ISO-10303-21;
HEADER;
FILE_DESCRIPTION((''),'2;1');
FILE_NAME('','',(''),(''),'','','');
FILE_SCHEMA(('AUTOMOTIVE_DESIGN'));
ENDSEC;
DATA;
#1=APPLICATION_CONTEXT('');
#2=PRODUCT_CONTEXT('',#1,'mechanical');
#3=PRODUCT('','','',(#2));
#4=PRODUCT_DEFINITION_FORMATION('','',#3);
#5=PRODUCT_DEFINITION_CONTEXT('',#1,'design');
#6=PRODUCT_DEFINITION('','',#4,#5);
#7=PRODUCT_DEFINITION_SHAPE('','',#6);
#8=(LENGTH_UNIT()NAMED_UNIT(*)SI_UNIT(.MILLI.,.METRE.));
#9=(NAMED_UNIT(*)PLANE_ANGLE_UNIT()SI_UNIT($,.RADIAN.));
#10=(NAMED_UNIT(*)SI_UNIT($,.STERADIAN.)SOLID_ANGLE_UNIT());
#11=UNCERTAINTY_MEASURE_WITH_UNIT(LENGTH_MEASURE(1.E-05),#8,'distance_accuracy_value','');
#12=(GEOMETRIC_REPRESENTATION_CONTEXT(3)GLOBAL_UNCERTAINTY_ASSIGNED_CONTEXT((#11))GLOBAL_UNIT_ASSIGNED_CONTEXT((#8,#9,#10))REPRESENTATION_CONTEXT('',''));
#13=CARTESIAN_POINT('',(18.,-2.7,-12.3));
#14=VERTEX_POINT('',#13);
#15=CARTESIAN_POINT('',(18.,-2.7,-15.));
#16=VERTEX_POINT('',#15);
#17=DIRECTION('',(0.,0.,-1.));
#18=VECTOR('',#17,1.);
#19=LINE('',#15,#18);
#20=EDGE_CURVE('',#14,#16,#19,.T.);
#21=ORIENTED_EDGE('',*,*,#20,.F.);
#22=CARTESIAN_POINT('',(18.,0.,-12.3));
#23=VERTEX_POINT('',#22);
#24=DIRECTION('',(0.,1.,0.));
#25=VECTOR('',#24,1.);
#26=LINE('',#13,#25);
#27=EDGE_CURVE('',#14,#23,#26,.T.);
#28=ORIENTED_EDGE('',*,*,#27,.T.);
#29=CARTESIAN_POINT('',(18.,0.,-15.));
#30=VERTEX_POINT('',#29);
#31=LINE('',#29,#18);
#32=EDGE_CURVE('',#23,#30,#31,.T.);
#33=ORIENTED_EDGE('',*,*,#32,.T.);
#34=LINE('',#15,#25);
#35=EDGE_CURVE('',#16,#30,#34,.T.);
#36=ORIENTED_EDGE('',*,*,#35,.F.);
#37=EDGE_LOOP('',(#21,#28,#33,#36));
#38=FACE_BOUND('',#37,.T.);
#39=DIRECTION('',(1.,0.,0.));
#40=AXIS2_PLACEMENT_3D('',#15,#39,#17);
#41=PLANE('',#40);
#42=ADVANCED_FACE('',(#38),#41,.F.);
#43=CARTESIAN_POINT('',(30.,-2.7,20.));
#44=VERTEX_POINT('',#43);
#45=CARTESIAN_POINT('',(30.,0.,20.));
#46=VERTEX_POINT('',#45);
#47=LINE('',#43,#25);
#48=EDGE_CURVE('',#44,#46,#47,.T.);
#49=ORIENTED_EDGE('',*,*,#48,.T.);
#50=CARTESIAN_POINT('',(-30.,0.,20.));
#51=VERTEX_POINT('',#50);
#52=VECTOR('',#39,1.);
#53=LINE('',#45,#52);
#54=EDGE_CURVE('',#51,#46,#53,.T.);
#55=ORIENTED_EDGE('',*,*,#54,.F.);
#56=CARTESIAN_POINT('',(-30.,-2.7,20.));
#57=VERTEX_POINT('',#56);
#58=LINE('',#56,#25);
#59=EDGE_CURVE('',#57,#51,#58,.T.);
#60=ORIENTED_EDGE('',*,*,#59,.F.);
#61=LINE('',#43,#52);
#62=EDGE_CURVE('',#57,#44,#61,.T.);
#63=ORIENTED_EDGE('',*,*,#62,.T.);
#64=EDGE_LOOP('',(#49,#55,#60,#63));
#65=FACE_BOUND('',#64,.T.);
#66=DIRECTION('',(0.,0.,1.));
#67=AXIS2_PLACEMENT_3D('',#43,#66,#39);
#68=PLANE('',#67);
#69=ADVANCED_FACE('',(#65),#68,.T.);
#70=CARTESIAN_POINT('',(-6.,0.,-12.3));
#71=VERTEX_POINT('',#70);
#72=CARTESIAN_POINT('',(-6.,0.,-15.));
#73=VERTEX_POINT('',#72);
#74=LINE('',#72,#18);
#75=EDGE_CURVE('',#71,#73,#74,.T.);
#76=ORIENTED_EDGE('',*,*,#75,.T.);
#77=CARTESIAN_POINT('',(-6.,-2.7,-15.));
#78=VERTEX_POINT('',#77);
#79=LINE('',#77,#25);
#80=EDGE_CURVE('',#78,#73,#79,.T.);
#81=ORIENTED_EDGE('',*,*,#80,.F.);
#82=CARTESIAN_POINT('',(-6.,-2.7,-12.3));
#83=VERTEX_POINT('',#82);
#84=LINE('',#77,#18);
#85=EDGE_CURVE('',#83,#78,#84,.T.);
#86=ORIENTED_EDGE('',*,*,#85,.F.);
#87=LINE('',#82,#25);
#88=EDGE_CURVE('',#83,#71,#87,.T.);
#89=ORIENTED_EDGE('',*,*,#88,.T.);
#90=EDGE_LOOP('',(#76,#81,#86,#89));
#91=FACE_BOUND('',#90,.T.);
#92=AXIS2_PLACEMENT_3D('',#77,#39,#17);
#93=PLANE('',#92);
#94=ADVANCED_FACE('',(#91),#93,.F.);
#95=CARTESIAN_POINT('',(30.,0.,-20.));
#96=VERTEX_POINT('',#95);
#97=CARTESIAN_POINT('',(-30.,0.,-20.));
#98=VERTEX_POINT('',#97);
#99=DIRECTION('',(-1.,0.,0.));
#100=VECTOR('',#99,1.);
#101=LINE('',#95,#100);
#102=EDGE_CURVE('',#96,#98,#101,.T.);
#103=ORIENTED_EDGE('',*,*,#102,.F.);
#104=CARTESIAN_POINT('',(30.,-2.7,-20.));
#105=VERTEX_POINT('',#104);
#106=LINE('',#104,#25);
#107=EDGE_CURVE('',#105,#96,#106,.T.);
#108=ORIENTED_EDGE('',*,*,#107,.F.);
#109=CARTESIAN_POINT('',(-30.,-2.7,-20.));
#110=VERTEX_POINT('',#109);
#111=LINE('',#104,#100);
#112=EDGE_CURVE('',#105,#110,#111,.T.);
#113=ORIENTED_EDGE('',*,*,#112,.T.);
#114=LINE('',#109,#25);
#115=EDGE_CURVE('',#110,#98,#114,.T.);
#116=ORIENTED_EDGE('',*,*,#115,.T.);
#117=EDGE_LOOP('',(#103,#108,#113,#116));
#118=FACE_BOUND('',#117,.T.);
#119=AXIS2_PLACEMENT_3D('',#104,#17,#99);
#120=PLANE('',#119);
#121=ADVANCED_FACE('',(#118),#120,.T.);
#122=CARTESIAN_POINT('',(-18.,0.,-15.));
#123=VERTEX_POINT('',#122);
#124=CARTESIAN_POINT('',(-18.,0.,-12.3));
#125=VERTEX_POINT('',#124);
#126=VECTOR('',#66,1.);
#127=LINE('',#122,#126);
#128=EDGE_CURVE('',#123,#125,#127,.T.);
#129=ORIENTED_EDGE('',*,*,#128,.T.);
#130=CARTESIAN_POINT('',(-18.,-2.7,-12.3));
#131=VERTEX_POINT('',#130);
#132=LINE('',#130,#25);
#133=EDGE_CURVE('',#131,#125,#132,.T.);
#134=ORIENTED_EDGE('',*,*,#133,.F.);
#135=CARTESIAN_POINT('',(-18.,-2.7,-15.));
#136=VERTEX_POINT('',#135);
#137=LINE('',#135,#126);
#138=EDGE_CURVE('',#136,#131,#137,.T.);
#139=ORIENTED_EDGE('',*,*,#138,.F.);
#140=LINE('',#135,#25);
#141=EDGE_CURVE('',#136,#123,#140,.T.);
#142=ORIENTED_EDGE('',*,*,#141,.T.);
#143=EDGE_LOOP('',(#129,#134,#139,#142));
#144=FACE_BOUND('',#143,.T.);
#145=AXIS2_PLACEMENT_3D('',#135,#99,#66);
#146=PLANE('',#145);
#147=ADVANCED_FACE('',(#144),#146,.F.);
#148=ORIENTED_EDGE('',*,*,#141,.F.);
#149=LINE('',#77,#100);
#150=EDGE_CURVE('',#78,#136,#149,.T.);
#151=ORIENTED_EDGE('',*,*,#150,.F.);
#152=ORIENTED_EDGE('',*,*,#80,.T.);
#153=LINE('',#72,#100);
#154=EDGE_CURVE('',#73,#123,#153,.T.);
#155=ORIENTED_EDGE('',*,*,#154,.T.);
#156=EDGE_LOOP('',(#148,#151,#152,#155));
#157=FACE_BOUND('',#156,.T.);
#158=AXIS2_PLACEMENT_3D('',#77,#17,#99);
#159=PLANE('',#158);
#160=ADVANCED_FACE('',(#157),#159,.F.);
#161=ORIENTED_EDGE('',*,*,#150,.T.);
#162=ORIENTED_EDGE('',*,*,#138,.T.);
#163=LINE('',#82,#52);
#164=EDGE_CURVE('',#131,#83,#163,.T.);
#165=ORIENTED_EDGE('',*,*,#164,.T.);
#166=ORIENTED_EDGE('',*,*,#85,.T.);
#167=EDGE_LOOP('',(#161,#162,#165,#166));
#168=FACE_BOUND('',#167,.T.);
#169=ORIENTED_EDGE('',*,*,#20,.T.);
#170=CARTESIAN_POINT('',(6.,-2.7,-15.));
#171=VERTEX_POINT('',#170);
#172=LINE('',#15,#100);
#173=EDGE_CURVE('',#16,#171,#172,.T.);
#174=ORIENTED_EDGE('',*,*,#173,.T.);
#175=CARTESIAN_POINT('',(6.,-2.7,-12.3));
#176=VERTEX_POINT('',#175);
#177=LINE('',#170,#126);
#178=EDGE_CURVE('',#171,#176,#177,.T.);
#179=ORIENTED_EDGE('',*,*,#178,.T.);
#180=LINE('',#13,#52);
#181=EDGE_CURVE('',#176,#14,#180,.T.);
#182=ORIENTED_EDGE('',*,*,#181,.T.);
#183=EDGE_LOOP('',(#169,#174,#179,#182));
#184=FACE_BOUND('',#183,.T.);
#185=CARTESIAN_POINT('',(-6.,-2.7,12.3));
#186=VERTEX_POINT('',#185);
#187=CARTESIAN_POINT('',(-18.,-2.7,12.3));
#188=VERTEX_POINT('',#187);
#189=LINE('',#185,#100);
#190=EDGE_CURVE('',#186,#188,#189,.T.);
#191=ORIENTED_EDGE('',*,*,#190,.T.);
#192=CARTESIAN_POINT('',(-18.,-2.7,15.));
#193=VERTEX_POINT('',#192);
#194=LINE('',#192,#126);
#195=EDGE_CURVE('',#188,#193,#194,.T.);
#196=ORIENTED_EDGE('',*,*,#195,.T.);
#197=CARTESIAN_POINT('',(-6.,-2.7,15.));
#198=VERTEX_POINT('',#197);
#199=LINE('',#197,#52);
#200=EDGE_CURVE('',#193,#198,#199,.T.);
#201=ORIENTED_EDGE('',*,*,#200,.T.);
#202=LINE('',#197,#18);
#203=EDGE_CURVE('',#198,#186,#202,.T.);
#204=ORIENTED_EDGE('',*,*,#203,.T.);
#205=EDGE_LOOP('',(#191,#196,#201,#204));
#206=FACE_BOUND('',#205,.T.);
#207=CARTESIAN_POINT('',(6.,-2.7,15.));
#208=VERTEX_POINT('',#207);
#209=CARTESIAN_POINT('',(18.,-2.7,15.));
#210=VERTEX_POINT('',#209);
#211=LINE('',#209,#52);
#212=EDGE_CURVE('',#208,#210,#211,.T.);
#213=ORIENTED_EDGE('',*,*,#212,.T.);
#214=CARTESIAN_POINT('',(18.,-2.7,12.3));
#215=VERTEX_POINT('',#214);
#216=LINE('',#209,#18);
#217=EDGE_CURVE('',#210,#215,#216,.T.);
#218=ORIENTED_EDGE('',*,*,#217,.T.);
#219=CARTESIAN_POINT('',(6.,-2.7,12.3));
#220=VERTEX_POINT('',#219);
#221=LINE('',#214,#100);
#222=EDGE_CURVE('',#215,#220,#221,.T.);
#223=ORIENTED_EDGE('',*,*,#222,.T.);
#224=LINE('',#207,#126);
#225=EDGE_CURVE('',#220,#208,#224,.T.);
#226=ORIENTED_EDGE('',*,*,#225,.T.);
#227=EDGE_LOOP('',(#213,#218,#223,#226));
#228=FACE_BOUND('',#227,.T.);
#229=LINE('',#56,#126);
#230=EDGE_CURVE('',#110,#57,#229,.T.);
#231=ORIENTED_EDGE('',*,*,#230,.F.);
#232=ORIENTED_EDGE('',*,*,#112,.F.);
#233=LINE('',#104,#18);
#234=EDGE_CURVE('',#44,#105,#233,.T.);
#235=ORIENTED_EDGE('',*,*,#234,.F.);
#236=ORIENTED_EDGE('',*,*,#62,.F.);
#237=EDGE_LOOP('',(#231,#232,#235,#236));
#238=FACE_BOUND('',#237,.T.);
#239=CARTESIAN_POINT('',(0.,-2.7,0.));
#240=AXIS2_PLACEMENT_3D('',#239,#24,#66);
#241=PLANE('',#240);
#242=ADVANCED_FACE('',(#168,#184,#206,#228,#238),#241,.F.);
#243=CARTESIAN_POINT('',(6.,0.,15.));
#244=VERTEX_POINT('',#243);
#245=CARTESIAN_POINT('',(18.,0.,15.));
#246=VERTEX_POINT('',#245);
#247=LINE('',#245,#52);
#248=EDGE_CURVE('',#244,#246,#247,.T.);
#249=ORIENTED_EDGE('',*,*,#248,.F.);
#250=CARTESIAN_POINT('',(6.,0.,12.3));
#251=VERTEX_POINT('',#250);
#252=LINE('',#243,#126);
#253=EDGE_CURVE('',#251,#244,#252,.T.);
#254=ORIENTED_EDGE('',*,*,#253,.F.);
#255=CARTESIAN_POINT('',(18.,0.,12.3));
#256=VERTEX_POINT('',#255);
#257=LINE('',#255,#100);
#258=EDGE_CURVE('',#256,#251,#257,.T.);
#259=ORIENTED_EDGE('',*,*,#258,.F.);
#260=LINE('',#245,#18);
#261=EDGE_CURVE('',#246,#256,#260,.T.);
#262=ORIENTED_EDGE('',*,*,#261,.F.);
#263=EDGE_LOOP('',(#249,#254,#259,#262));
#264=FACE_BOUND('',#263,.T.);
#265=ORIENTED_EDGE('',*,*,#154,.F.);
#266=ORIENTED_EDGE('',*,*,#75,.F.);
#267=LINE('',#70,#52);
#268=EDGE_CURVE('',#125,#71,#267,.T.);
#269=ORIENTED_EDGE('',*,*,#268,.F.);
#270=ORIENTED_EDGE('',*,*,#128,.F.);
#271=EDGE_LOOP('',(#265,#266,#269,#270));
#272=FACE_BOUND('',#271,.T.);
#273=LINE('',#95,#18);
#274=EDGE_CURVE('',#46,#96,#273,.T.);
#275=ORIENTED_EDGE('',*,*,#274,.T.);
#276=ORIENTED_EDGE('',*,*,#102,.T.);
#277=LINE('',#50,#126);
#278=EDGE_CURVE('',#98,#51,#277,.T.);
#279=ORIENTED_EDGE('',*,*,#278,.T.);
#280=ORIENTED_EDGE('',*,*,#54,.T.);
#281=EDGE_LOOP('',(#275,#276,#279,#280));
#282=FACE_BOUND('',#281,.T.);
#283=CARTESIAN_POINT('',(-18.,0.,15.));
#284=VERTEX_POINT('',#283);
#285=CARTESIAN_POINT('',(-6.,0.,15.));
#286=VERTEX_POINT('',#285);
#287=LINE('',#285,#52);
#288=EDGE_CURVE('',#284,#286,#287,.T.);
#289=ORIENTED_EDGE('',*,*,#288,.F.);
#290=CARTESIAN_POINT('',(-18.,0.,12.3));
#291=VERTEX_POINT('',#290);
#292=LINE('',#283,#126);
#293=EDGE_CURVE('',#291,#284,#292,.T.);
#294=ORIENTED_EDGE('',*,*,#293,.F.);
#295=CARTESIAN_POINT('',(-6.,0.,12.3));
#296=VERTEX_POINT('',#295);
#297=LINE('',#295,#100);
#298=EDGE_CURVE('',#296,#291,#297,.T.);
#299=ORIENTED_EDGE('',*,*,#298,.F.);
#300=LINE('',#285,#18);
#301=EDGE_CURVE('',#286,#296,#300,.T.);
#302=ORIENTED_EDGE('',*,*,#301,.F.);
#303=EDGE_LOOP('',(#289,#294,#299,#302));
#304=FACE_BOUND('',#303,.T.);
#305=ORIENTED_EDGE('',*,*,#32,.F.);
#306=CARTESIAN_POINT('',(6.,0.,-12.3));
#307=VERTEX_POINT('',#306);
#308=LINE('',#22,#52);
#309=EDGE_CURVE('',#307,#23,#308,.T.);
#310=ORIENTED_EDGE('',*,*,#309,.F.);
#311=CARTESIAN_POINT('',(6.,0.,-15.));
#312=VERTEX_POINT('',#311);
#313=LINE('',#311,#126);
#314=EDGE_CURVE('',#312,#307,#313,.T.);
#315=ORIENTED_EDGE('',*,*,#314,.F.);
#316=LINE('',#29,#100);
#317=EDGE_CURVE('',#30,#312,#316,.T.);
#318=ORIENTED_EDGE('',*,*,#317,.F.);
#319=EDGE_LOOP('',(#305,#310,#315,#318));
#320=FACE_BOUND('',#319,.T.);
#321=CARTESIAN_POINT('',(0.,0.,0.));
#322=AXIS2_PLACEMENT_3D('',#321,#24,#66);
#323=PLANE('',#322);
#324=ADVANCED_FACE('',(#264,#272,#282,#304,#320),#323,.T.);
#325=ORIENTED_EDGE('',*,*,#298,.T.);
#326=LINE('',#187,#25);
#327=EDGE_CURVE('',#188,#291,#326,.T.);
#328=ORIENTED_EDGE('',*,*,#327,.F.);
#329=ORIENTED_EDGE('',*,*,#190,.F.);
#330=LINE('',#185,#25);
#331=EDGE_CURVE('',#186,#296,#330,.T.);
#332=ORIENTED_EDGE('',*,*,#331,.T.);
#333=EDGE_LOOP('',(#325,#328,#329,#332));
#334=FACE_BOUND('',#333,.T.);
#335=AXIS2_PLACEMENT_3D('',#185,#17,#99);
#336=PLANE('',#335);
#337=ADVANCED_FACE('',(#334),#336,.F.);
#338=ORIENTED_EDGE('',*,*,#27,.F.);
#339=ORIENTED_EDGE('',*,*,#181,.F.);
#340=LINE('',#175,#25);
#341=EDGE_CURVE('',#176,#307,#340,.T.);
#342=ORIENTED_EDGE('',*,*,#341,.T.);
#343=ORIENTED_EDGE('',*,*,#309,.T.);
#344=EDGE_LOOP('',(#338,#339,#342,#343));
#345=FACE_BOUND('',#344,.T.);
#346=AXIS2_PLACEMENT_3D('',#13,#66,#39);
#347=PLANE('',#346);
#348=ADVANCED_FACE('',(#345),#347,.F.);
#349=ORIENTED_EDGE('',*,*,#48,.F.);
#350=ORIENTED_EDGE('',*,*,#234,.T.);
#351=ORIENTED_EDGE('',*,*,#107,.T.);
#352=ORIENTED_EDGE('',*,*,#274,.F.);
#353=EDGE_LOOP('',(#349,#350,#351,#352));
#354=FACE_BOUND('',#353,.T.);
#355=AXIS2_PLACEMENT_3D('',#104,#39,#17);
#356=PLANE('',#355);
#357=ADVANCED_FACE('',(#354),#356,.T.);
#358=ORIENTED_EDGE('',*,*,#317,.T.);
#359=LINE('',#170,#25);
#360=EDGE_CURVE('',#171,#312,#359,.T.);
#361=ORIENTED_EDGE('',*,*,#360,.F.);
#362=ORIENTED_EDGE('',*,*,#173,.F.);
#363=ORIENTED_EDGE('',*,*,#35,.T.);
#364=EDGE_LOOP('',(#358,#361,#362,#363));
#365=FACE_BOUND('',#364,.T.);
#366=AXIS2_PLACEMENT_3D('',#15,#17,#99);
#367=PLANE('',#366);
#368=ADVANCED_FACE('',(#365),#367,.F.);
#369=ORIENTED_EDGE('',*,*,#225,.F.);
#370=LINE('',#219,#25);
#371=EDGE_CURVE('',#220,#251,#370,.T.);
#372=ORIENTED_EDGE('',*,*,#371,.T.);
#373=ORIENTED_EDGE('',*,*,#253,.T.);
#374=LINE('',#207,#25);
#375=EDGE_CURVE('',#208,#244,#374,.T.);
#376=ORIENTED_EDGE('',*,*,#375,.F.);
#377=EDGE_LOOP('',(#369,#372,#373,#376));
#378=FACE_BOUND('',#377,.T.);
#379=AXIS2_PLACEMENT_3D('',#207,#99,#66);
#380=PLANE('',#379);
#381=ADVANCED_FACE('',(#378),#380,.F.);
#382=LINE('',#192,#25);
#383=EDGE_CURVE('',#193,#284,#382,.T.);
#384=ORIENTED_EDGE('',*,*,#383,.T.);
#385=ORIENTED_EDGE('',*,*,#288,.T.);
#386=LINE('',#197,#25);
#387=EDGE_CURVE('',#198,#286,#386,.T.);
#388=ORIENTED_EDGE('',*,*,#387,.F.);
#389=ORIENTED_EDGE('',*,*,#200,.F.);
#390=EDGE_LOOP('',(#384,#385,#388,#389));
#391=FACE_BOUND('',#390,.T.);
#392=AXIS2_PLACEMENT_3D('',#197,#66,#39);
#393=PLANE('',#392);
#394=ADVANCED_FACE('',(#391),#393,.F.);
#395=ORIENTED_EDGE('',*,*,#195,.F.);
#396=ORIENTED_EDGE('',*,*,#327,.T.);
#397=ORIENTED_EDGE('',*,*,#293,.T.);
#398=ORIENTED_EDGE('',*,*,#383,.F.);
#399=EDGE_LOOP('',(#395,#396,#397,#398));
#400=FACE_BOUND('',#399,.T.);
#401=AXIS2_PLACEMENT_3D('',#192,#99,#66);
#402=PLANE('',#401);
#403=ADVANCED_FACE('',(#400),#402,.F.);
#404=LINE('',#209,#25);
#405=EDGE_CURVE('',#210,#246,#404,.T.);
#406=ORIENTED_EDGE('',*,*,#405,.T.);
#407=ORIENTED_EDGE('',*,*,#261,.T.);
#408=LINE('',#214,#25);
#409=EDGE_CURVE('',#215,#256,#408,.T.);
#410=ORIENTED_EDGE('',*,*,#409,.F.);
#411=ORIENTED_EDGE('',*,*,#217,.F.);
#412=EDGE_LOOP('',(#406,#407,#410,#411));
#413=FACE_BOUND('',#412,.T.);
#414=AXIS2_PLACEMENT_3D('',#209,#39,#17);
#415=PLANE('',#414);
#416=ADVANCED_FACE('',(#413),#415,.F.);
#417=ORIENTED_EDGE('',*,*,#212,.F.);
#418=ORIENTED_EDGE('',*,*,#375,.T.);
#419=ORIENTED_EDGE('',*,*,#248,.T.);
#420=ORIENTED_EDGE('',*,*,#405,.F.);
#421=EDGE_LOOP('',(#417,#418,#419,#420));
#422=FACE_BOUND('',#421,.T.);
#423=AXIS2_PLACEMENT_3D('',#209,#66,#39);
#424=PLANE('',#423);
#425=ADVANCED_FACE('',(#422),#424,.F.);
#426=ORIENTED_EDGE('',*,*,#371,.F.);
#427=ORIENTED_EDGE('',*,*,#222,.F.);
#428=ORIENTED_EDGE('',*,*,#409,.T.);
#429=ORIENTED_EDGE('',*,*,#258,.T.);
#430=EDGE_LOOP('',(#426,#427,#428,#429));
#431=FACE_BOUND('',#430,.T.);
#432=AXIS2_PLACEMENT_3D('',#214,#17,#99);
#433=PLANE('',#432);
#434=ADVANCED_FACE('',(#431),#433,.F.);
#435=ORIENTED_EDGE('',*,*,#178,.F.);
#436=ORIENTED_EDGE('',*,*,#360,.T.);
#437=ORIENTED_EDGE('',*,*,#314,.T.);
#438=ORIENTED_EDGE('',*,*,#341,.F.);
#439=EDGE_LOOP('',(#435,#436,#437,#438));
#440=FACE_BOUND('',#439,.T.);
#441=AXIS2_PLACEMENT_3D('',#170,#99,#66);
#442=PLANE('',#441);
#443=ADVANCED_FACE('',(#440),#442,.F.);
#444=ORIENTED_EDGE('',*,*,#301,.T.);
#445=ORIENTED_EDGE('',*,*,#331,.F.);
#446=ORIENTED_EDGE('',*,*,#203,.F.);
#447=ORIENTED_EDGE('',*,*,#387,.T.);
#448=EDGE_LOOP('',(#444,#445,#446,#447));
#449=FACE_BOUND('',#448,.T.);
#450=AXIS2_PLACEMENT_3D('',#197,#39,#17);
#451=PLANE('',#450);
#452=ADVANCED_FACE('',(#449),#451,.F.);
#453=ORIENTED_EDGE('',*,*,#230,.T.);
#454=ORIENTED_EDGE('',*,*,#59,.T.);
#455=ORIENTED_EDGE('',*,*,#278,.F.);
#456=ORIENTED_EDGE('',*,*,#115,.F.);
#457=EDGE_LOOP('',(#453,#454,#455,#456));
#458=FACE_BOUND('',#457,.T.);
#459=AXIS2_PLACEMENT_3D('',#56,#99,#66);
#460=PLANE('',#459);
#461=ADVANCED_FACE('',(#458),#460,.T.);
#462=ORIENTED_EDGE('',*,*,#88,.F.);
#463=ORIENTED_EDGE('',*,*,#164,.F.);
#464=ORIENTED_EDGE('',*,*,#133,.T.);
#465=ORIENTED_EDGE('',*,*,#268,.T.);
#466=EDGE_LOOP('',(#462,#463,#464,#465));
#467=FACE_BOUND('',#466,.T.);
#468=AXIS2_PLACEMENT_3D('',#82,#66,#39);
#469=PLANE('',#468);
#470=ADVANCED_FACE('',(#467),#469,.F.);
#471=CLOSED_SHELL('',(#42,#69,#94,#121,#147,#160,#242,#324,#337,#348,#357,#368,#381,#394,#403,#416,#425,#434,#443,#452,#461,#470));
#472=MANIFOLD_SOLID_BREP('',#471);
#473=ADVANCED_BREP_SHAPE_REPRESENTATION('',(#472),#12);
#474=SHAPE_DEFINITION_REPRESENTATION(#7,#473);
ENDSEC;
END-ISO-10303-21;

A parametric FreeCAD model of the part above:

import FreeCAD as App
import Part
import Sketcher

doc = App.newDocument("Part")
body = doc.addObject("PartDesign::Body", "Body")

sketch1 = body.newObject("Sketcher::SketchObject", "Sketch")
sketch1.AttachmentSupport = (doc.getObject("XZ_Plane"), [""])
sketch1.MapMode = "FlatFace"
sketch1.addGeometry([
    Part.LineSegment(App.Vector(-30, -20, 0), App.Vector(-30, 20, 0)),
    Part.LineSegment(App.Vector(-30, 20, 0), App.Vector(30, 20, 0)),
    Part.LineSegment(App.Vector(30, 20, 0), App.Vector(30, -20, 0)),
    Part.LineSegment(App.Vector(30, -20, 0), App.Vector(-30, -20, 0)),
    Part.LineSegment(App.Vector(-6, 15, 0), App.Vector(-18, 15, 0)),
    Part.LineSegment(App.Vector(-18, 15, 0), App.Vector(-18, 12.3, 0)),
    Part.LineSegment(App.Vector(-18, 12.3, 0), App.Vector(-6, 12.3, 0)),
    Part.LineSegment(App.Vector(-6, 12.3, 0), App.Vector(-6, 15, 0)),
    Part.LineSegment(App.Vector(18, 15, 0), App.Vector(6, 15, 0)),
    Part.LineSegment(App.Vector(6, 15, 0), App.Vector(6, 12.3, 0)),
    Part.LineSegment(App.Vector(6, 12.3, 0), App.Vector(18, 12.3, 0)),
    Part.LineSegment(App.Vector(18, 12.3, 0), App.Vector(18, 15, 0)),
    Part.LineSegment(App.Vector(-6, -12.3, 0), App.Vector(-18, -12.3, 0)),
    Part.LineSegment(App.Vector(-18, -12.3, 0), App.Vector(-18, -15, 0)),
    Part.LineSegment(App.Vector(-18, -15, 0), App.Vector(-6, -15, 0)),
    Part.LineSegment(App.Vector(-6, -15, 0), App.Vector(-6, -12.3, 0)),
    Part.LineSegment(App.Vector(18, -12.3, 0), App.Vector(6, -12.3, 0)),
    Part.LineSegment(App.Vector(6, -12.3, 0), App.Vector(6, -15, 0)),
    Part.LineSegment(App.Vector(6, -15, 0), App.Vector(18, -15, 0)),
    Part.LineSegment(App.Vector(18, -15, 0), App.Vector(18, -12.3, 0)),
], False)
sketch1.addConstraint([
    Sketcher.Constraint("Coincident", 0, 2, 1, 1),
    Sketcher.Constraint("Coincident", 1, 2, 2, 1),
    Sketcher.Constraint("Coincident", 2, 2, 3, 1),
    Sketcher.Constraint("Coincident", 3, 2, 0, 1),
    Sketcher.Constraint("Coincident", 4, 2, 5, 1),
    Sketcher.Constraint("Coincident", 5, 2, 6, 1),
    Sketcher.Constraint("Coincident", 6, 2, 7, 1),
    Sketcher.Constraint("Coincident", 7, 2, 4, 1),
    Sketcher.Constraint("Coincident", 8, 2, 9, 1),
    Sketcher.Constraint("Coincident", 9, 2, 10, 1),
    Sketcher.Constraint("Coincident", 10, 2, 11, 1),
    Sketcher.Constraint("Coincident", 11, 2, 8, 1),
    Sketcher.Constraint("Coincident", 12, 2, 13, 1),
    Sketcher.Constraint("Coincident", 13, 2, 14, 1),
    Sketcher.Constraint("Coincident", 14, 2, 15, 1),
    Sketcher.Constraint("Coincident", 15, 2, 12, 1),
    Sketcher.Constraint("Coincident", 16, 2, 17, 1),
    Sketcher.Constraint("Coincident", 17, 2, 18, 1),
    Sketcher.Constraint("Coincident", 18, 2, 19, 1),
    Sketcher.Constraint("Coincident", 19, 2, 16, 1),
    Sketcher.Constraint("Vertical", 0),
    Sketcher.Constraint("Horizontal", 1),
    Sketcher.Constraint("Vertical", 2),
    Sketcher.Constraint("Horizontal", 3),
    Sketcher.Constraint("Horizontal", 4),
    Sketcher.Constraint("Vertical", 5),
    Sketcher.Constraint("Horizontal", 6),
    Sketcher.Constraint("Vertical", 7),
    Sketcher.Constraint("Horizontal", 8),
    Sketcher.Constraint("Vertical", 9),
    Sketcher.Constraint("Horizontal", 10),
    Sketcher.Constraint("Vertical", 11),
    Sketcher.Constraint("Horizontal", 12),
    Sketcher.Constraint("Vertical", 13),
    Sketcher.Constraint("Horizontal", 14),
    Sketcher.Constraint("Vertical", 15),
    Sketcher.Constraint("Horizontal", 16),
    Sketcher.Constraint("Vertical", 17),
    Sketcher.Constraint("Horizontal", 18),
    Sketcher.Constraint("Vertical", 19),
    Sketcher.Constraint("Symmetric", 0, 2, 2, 2, -1, 1),
    Sketcher.Constraint("Symmetric", 10, 2, 12, 2, -1, 1),
    Sketcher.Constraint("Symmetric", 8, 2, 14, 2, -1, 1),
    Sketcher.Constraint("Symmetric", 6, 2, 16, 2, -1, 1),
    Sketcher.Constraint("Symmetric", 4, 2, 18, 2, -1, 1),
    Sketcher.Constraint("Symmetric", 7, 2, 8, 2, -2),
    Sketcher.Constraint("Symmetric", 5, 2, 10, 2, -2),
    Sketcher.Constraint("DistanceX", 1, 1, 1, 2, 60.0),
    Sketcher.Constraint("DistanceX", 4, 2, 4, 1, 12.0),
    Sketcher.Constraint("DistanceY", 0, 1, 0, 2, 40.0),
    Sketcher.Constraint("DistanceY", 5, 2, 5, 1, 2.7),
    Sketcher.Constraint("DistanceX", 4, 2, -1, 1, 18.0),
    Sketcher.Constraint("DistanceY", -1, 1, 4, 2, 15.0),
])
pad1 = body.newObject("PartDesign::Pad", "Pad")
pad1.Profile = sketch1
pad1.Length = 2.7

doc.recompute()
